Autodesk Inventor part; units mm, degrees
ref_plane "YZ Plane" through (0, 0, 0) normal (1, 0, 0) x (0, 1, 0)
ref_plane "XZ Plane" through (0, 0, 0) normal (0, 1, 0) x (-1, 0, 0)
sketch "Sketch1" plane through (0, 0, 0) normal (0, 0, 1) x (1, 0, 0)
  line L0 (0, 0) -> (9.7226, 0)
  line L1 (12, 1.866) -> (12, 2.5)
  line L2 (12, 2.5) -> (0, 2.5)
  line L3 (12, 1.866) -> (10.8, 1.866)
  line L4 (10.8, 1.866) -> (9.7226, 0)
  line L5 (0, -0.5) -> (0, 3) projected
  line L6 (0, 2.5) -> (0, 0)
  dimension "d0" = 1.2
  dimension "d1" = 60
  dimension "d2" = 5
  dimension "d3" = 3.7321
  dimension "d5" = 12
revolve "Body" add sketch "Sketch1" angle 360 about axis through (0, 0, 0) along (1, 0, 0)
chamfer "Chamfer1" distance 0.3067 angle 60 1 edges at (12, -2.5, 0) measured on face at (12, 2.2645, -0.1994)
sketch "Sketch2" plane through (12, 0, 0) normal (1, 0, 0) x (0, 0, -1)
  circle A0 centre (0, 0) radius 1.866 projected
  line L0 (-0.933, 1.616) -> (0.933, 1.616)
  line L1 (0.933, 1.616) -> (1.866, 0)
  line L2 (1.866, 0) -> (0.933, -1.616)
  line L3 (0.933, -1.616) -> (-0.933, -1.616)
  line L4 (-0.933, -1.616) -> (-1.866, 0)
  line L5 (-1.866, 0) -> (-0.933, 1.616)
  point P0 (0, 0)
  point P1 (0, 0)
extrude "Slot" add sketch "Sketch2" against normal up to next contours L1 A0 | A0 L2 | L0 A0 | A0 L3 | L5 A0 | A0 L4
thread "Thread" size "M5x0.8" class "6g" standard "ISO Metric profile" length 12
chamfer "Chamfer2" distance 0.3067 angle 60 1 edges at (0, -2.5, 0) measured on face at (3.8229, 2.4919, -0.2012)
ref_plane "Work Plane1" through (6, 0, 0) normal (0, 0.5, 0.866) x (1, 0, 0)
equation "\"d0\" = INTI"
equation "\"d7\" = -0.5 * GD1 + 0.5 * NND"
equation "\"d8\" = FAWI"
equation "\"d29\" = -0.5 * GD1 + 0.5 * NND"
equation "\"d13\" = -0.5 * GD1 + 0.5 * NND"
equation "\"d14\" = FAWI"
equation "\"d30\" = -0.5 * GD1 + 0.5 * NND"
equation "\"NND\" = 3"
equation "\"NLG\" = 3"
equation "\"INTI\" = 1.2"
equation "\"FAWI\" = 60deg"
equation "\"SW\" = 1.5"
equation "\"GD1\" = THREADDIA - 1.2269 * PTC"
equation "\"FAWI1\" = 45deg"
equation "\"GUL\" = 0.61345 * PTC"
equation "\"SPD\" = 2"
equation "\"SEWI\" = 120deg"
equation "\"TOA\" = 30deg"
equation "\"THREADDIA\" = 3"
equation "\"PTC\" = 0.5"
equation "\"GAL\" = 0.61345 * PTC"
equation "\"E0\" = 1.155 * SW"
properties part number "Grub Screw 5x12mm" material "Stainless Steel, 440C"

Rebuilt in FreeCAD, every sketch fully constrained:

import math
import FreeCAD as App
import Part
import Sketcher
from FreeCAD import Vector
Q = App.Units.Quantity


def edges_at(feature, points):
    """Names of the edges that pass closest to the given points."""
    edges = feature.Shape.Edges
    near = lambda p: min(range(len(edges)), key=lambda i: edges[i].distToShape(Part.Vertex(*p))[0])
    return sorted({f"Edge{near(p) + 1}" for p in points})

doc = App.newDocument("Part")
body = doc.addObject("PartDesign::Body", "Body")

# Sketch on XY plane
sketch1 = body.newObject("Sketcher::SketchObject", "Sketch")
sketch1.AttachmentSupport = (doc.getObject("XY_Plane"), [""])
sketch1.MapMode = "FlatFace"
sketch1.addGeometry([
    Part.LineSegment(Vector(0, 2.5, 0), Vector(0, 0, 0)),  # 0
    Part.LineSegment(Vector(0, 0, 0), Vector(9.7226, 0, 0)),  # 1
    Part.LineSegment(Vector(9.7226, 0, 0), Vector(10.8, 1.866, 0)),  # 2
    Part.LineSegment(Vector(10.8, 1.866, 0), Vector(12, 1.866, 0)),  # 3
    Part.LineSegment(Vector(12, 1.866, 0), Vector(12, 2.5, 0)),  # 4
    Part.LineSegment(Vector(12, 2.5, 0), Vector(0, 2.5, 0)),  # 5
], False)
sketch1.addConstraint([
    Sketcher.Constraint("Coincident", 0, 2, 1, 1),
    Sketcher.Constraint("Coincident", 1, 2, 2, 1),
    Sketcher.Constraint("Coincident", 2, 2, 3, 1),
    Sketcher.Constraint("Coincident", 3, 2, 4, 1),
    Sketcher.Constraint("Coincident", 4, 2, 5, 1),
    Sketcher.Constraint("Coincident", 5, 2, 0, 1),
    Sketcher.Constraint("Vertical", 0),
    Sketcher.Constraint("Horizontal", 1),
    Sketcher.Constraint("Horizontal", 3),
    Sketcher.Constraint("Vertical", 4),
    Sketcher.Constraint("Horizontal", 5),
    Sketcher.Constraint("Coincident", 0, 2, -1, 1),
    Sketcher.Constraint("DistanceX", 5, 2, 5, 1, Q("12 mm")),
    Sketcher.Constraint("DistanceX", 3, 1, 3, 2, Q("1.2 mm")),
    Sketcher.Constraint("DistanceY", 0, 2, 0, 1, Q("2.5 mm")),
    Sketcher.Constraint("DistanceY", 4, 1, 4, 2, Q("0.634 mm")),
    Sketcher.Constraint("DistanceX", 1, 1, 1, 2, Q("9.7226 mm")),
])
revolution = body.newObject("PartDesign::Revolution", "Revolution")
revolution.Profile = sketch1
revolution.ReferenceAxis = (sketch1, ["H_Axis"])
revolution.Angle = 360
doc.recompute()

chamfer = body.newObject("PartDesign::Chamfer", "Chamfer")
chamfer.Base = (revolution, edges_at(revolution, [(12, -2.5, 0)]))
chamfer.ChamferType = "Distance and Angle"
chamfer.Size = 0.3067
chamfer.Angle = 60

# Sketch on YZ plane
sketch2 = body.newObject("Sketcher::SketchObject", "Sketch001")
sketch2.AttachmentSupport = (doc.getObject("YZ_Plane"), [""])
sketch2.MapMode = "FlatFace"
sketch2.AttachmentOffset = App.Placement(Vector(0, 0, 12), App.Rotation())
sketch2.addGeometry([
    Part.LineSegment(Vector(1.616, -0.933, 0), Vector(0, -1.866, 0)),  # 0
    Part.ArcOfCircle(Part.Circle(Vector(0, 0, 0), Vector(0, 0, 1), 1.866), math.radians(-90), math.radians(-30.000052)),  # 1
    Part.ArcOfCircle(Part.Circle(Vector(0, 0, 0), Vector(0, 0, 1), 1.866), math.radians(-149.999948), math.radians(-90)),  # 2
    Part.LineSegment(Vector(0, -1.866, 0), Vector(-1.616, -0.933, 0)),  # 3
    Part.LineSegment(Vector(1.616, 0.933, 0), Vector(1.616, -0.933, 0)),  # 4
    Part.ArcOfCircle(Part.Circle(Vector(0, 0, 0), Vector(0, 0, 1), 1.866), math.radians(-30.000052), math.radians(30.000052)),  # 5
    Part.ArcOfCircle(Part.Circle(Vector(0, 0, 0), Vector(0, 0, 1), 1.866), math.radians(149.999948), math.radians(210.000052)),  # 6
    Part.LineSegment(Vector(-1.616, 0.933, 0), Vector(-1.616, -0.933, 0)),  # 7
    Part.LineSegment(Vector(0, 1.866, 0), Vector(1.616, 0.933, 0)),  # 8
    Part.ArcOfCircle(Part.Circle(Vector(0, 0, 0), Vector(0, 0, 1), 1.866), math.radians(30.000052), math.radians(90)),  # 9
    Part.ArcOfCircle(Part.Circle(Vector(0, 0, 0), Vector(0, 0, 1), 1.866), math.radians(90), math.radians(149.999948)),  # 10
    Part.LineSegment(Vector(0, 1.866, 0), Vector(-1.616, 0.933, 0)),  # 11
], False)
sketch2.addConstraint([
    Sketcher.Constraint("Coincident", 0, 1, 1, 2),
    Sketcher.Constraint("Coincident", 1, 1, 0, 2),
    Sketcher.Constraint("Coincident", 2, 1, 3, 2),
    Sketcher.Constraint("Coincident", 3, 1, 2, 2),
    Sketcher.Constraint("Coincident", 4, 1, 5, 2),
    Sketcher.Constraint("Coincident", 5, 1, 4, 2),
    Sketcher.Constraint("Coincident", 6, 1, 7, 1),
    Sketcher.Constraint("Coincident", 7, 2, 6, 2),
    Sketcher.Constraint("Coincident", 8, 1, 9, 2),
    Sketcher.Constraint("Coincident", 9, 1, 8, 2),
    Sketcher.Constraint("Coincident", 10, 1, 11, 1),
    Sketcher.Constraint("Coincident", 11, 2, 10, 2),
    Sketcher.Constraint("Vertical", 4),
    Sketcher.Constraint("Vertical", 7),
    Sketcher.Constraint("Coincident", 1, 3, -1, 1),
    Sketcher.Constraint("Coincident", 2, 3, -1, 1),
    Sketcher.Constraint("Coincident", 5, 3, -1, 1),
    Sketcher.Constraint("Coincident", 6, 3, -1, 1),
    Sketcher.Constraint("Coincident", 9, 3, -1, 1),
    Sketcher.Constraint("Coincident", 10, 3, -1, 1),
    Sketcher.Constraint("Coincident", 3, 1, 1, 1),
    Sketcher.Constraint("Coincident", 5, 1, 0, 1),
    Sketcher.Constraint("Coincident", 7, 2, 2, 1),
    Sketcher.Constraint("Coincident", 9, 1, 4, 1),
    Sketcher.Constraint("Coincident", 10, 1, 8, 1),
    Sketcher.Constraint("PointOnObject", 1, 1, -2),
    Sketcher.Constraint("PointOnObject", 8, 1, -2),
    Sketcher.Constraint("Parallel", 3, 8),
    Sketcher.Constraint("Parallel", 0, 11),
    Sketcher.Constraint("Angle", 0, Q("-150 deg")),
    Sketcher.Constraint("Radius", 1, Q("1.866 mm")),
])
pad1 = body.newObject("PartDesign::Pad", "Pad")
pad1.Profile = sketch2
pad1.Type = "UpToFirst"
pad1.Reversed = True
doc.recompute()

chamfer2 = body.newObject("PartDesign::Chamfer", "Chamfer001")
chamfer2.Base = (pad1, edges_at(pad1, [(0, -2.5, 0)]))
chamfer2.ChamferType = "Distance and Angle"
chamfer2.Size = 0.3067
chamfer2.Angle = 60

doc.recompute()
